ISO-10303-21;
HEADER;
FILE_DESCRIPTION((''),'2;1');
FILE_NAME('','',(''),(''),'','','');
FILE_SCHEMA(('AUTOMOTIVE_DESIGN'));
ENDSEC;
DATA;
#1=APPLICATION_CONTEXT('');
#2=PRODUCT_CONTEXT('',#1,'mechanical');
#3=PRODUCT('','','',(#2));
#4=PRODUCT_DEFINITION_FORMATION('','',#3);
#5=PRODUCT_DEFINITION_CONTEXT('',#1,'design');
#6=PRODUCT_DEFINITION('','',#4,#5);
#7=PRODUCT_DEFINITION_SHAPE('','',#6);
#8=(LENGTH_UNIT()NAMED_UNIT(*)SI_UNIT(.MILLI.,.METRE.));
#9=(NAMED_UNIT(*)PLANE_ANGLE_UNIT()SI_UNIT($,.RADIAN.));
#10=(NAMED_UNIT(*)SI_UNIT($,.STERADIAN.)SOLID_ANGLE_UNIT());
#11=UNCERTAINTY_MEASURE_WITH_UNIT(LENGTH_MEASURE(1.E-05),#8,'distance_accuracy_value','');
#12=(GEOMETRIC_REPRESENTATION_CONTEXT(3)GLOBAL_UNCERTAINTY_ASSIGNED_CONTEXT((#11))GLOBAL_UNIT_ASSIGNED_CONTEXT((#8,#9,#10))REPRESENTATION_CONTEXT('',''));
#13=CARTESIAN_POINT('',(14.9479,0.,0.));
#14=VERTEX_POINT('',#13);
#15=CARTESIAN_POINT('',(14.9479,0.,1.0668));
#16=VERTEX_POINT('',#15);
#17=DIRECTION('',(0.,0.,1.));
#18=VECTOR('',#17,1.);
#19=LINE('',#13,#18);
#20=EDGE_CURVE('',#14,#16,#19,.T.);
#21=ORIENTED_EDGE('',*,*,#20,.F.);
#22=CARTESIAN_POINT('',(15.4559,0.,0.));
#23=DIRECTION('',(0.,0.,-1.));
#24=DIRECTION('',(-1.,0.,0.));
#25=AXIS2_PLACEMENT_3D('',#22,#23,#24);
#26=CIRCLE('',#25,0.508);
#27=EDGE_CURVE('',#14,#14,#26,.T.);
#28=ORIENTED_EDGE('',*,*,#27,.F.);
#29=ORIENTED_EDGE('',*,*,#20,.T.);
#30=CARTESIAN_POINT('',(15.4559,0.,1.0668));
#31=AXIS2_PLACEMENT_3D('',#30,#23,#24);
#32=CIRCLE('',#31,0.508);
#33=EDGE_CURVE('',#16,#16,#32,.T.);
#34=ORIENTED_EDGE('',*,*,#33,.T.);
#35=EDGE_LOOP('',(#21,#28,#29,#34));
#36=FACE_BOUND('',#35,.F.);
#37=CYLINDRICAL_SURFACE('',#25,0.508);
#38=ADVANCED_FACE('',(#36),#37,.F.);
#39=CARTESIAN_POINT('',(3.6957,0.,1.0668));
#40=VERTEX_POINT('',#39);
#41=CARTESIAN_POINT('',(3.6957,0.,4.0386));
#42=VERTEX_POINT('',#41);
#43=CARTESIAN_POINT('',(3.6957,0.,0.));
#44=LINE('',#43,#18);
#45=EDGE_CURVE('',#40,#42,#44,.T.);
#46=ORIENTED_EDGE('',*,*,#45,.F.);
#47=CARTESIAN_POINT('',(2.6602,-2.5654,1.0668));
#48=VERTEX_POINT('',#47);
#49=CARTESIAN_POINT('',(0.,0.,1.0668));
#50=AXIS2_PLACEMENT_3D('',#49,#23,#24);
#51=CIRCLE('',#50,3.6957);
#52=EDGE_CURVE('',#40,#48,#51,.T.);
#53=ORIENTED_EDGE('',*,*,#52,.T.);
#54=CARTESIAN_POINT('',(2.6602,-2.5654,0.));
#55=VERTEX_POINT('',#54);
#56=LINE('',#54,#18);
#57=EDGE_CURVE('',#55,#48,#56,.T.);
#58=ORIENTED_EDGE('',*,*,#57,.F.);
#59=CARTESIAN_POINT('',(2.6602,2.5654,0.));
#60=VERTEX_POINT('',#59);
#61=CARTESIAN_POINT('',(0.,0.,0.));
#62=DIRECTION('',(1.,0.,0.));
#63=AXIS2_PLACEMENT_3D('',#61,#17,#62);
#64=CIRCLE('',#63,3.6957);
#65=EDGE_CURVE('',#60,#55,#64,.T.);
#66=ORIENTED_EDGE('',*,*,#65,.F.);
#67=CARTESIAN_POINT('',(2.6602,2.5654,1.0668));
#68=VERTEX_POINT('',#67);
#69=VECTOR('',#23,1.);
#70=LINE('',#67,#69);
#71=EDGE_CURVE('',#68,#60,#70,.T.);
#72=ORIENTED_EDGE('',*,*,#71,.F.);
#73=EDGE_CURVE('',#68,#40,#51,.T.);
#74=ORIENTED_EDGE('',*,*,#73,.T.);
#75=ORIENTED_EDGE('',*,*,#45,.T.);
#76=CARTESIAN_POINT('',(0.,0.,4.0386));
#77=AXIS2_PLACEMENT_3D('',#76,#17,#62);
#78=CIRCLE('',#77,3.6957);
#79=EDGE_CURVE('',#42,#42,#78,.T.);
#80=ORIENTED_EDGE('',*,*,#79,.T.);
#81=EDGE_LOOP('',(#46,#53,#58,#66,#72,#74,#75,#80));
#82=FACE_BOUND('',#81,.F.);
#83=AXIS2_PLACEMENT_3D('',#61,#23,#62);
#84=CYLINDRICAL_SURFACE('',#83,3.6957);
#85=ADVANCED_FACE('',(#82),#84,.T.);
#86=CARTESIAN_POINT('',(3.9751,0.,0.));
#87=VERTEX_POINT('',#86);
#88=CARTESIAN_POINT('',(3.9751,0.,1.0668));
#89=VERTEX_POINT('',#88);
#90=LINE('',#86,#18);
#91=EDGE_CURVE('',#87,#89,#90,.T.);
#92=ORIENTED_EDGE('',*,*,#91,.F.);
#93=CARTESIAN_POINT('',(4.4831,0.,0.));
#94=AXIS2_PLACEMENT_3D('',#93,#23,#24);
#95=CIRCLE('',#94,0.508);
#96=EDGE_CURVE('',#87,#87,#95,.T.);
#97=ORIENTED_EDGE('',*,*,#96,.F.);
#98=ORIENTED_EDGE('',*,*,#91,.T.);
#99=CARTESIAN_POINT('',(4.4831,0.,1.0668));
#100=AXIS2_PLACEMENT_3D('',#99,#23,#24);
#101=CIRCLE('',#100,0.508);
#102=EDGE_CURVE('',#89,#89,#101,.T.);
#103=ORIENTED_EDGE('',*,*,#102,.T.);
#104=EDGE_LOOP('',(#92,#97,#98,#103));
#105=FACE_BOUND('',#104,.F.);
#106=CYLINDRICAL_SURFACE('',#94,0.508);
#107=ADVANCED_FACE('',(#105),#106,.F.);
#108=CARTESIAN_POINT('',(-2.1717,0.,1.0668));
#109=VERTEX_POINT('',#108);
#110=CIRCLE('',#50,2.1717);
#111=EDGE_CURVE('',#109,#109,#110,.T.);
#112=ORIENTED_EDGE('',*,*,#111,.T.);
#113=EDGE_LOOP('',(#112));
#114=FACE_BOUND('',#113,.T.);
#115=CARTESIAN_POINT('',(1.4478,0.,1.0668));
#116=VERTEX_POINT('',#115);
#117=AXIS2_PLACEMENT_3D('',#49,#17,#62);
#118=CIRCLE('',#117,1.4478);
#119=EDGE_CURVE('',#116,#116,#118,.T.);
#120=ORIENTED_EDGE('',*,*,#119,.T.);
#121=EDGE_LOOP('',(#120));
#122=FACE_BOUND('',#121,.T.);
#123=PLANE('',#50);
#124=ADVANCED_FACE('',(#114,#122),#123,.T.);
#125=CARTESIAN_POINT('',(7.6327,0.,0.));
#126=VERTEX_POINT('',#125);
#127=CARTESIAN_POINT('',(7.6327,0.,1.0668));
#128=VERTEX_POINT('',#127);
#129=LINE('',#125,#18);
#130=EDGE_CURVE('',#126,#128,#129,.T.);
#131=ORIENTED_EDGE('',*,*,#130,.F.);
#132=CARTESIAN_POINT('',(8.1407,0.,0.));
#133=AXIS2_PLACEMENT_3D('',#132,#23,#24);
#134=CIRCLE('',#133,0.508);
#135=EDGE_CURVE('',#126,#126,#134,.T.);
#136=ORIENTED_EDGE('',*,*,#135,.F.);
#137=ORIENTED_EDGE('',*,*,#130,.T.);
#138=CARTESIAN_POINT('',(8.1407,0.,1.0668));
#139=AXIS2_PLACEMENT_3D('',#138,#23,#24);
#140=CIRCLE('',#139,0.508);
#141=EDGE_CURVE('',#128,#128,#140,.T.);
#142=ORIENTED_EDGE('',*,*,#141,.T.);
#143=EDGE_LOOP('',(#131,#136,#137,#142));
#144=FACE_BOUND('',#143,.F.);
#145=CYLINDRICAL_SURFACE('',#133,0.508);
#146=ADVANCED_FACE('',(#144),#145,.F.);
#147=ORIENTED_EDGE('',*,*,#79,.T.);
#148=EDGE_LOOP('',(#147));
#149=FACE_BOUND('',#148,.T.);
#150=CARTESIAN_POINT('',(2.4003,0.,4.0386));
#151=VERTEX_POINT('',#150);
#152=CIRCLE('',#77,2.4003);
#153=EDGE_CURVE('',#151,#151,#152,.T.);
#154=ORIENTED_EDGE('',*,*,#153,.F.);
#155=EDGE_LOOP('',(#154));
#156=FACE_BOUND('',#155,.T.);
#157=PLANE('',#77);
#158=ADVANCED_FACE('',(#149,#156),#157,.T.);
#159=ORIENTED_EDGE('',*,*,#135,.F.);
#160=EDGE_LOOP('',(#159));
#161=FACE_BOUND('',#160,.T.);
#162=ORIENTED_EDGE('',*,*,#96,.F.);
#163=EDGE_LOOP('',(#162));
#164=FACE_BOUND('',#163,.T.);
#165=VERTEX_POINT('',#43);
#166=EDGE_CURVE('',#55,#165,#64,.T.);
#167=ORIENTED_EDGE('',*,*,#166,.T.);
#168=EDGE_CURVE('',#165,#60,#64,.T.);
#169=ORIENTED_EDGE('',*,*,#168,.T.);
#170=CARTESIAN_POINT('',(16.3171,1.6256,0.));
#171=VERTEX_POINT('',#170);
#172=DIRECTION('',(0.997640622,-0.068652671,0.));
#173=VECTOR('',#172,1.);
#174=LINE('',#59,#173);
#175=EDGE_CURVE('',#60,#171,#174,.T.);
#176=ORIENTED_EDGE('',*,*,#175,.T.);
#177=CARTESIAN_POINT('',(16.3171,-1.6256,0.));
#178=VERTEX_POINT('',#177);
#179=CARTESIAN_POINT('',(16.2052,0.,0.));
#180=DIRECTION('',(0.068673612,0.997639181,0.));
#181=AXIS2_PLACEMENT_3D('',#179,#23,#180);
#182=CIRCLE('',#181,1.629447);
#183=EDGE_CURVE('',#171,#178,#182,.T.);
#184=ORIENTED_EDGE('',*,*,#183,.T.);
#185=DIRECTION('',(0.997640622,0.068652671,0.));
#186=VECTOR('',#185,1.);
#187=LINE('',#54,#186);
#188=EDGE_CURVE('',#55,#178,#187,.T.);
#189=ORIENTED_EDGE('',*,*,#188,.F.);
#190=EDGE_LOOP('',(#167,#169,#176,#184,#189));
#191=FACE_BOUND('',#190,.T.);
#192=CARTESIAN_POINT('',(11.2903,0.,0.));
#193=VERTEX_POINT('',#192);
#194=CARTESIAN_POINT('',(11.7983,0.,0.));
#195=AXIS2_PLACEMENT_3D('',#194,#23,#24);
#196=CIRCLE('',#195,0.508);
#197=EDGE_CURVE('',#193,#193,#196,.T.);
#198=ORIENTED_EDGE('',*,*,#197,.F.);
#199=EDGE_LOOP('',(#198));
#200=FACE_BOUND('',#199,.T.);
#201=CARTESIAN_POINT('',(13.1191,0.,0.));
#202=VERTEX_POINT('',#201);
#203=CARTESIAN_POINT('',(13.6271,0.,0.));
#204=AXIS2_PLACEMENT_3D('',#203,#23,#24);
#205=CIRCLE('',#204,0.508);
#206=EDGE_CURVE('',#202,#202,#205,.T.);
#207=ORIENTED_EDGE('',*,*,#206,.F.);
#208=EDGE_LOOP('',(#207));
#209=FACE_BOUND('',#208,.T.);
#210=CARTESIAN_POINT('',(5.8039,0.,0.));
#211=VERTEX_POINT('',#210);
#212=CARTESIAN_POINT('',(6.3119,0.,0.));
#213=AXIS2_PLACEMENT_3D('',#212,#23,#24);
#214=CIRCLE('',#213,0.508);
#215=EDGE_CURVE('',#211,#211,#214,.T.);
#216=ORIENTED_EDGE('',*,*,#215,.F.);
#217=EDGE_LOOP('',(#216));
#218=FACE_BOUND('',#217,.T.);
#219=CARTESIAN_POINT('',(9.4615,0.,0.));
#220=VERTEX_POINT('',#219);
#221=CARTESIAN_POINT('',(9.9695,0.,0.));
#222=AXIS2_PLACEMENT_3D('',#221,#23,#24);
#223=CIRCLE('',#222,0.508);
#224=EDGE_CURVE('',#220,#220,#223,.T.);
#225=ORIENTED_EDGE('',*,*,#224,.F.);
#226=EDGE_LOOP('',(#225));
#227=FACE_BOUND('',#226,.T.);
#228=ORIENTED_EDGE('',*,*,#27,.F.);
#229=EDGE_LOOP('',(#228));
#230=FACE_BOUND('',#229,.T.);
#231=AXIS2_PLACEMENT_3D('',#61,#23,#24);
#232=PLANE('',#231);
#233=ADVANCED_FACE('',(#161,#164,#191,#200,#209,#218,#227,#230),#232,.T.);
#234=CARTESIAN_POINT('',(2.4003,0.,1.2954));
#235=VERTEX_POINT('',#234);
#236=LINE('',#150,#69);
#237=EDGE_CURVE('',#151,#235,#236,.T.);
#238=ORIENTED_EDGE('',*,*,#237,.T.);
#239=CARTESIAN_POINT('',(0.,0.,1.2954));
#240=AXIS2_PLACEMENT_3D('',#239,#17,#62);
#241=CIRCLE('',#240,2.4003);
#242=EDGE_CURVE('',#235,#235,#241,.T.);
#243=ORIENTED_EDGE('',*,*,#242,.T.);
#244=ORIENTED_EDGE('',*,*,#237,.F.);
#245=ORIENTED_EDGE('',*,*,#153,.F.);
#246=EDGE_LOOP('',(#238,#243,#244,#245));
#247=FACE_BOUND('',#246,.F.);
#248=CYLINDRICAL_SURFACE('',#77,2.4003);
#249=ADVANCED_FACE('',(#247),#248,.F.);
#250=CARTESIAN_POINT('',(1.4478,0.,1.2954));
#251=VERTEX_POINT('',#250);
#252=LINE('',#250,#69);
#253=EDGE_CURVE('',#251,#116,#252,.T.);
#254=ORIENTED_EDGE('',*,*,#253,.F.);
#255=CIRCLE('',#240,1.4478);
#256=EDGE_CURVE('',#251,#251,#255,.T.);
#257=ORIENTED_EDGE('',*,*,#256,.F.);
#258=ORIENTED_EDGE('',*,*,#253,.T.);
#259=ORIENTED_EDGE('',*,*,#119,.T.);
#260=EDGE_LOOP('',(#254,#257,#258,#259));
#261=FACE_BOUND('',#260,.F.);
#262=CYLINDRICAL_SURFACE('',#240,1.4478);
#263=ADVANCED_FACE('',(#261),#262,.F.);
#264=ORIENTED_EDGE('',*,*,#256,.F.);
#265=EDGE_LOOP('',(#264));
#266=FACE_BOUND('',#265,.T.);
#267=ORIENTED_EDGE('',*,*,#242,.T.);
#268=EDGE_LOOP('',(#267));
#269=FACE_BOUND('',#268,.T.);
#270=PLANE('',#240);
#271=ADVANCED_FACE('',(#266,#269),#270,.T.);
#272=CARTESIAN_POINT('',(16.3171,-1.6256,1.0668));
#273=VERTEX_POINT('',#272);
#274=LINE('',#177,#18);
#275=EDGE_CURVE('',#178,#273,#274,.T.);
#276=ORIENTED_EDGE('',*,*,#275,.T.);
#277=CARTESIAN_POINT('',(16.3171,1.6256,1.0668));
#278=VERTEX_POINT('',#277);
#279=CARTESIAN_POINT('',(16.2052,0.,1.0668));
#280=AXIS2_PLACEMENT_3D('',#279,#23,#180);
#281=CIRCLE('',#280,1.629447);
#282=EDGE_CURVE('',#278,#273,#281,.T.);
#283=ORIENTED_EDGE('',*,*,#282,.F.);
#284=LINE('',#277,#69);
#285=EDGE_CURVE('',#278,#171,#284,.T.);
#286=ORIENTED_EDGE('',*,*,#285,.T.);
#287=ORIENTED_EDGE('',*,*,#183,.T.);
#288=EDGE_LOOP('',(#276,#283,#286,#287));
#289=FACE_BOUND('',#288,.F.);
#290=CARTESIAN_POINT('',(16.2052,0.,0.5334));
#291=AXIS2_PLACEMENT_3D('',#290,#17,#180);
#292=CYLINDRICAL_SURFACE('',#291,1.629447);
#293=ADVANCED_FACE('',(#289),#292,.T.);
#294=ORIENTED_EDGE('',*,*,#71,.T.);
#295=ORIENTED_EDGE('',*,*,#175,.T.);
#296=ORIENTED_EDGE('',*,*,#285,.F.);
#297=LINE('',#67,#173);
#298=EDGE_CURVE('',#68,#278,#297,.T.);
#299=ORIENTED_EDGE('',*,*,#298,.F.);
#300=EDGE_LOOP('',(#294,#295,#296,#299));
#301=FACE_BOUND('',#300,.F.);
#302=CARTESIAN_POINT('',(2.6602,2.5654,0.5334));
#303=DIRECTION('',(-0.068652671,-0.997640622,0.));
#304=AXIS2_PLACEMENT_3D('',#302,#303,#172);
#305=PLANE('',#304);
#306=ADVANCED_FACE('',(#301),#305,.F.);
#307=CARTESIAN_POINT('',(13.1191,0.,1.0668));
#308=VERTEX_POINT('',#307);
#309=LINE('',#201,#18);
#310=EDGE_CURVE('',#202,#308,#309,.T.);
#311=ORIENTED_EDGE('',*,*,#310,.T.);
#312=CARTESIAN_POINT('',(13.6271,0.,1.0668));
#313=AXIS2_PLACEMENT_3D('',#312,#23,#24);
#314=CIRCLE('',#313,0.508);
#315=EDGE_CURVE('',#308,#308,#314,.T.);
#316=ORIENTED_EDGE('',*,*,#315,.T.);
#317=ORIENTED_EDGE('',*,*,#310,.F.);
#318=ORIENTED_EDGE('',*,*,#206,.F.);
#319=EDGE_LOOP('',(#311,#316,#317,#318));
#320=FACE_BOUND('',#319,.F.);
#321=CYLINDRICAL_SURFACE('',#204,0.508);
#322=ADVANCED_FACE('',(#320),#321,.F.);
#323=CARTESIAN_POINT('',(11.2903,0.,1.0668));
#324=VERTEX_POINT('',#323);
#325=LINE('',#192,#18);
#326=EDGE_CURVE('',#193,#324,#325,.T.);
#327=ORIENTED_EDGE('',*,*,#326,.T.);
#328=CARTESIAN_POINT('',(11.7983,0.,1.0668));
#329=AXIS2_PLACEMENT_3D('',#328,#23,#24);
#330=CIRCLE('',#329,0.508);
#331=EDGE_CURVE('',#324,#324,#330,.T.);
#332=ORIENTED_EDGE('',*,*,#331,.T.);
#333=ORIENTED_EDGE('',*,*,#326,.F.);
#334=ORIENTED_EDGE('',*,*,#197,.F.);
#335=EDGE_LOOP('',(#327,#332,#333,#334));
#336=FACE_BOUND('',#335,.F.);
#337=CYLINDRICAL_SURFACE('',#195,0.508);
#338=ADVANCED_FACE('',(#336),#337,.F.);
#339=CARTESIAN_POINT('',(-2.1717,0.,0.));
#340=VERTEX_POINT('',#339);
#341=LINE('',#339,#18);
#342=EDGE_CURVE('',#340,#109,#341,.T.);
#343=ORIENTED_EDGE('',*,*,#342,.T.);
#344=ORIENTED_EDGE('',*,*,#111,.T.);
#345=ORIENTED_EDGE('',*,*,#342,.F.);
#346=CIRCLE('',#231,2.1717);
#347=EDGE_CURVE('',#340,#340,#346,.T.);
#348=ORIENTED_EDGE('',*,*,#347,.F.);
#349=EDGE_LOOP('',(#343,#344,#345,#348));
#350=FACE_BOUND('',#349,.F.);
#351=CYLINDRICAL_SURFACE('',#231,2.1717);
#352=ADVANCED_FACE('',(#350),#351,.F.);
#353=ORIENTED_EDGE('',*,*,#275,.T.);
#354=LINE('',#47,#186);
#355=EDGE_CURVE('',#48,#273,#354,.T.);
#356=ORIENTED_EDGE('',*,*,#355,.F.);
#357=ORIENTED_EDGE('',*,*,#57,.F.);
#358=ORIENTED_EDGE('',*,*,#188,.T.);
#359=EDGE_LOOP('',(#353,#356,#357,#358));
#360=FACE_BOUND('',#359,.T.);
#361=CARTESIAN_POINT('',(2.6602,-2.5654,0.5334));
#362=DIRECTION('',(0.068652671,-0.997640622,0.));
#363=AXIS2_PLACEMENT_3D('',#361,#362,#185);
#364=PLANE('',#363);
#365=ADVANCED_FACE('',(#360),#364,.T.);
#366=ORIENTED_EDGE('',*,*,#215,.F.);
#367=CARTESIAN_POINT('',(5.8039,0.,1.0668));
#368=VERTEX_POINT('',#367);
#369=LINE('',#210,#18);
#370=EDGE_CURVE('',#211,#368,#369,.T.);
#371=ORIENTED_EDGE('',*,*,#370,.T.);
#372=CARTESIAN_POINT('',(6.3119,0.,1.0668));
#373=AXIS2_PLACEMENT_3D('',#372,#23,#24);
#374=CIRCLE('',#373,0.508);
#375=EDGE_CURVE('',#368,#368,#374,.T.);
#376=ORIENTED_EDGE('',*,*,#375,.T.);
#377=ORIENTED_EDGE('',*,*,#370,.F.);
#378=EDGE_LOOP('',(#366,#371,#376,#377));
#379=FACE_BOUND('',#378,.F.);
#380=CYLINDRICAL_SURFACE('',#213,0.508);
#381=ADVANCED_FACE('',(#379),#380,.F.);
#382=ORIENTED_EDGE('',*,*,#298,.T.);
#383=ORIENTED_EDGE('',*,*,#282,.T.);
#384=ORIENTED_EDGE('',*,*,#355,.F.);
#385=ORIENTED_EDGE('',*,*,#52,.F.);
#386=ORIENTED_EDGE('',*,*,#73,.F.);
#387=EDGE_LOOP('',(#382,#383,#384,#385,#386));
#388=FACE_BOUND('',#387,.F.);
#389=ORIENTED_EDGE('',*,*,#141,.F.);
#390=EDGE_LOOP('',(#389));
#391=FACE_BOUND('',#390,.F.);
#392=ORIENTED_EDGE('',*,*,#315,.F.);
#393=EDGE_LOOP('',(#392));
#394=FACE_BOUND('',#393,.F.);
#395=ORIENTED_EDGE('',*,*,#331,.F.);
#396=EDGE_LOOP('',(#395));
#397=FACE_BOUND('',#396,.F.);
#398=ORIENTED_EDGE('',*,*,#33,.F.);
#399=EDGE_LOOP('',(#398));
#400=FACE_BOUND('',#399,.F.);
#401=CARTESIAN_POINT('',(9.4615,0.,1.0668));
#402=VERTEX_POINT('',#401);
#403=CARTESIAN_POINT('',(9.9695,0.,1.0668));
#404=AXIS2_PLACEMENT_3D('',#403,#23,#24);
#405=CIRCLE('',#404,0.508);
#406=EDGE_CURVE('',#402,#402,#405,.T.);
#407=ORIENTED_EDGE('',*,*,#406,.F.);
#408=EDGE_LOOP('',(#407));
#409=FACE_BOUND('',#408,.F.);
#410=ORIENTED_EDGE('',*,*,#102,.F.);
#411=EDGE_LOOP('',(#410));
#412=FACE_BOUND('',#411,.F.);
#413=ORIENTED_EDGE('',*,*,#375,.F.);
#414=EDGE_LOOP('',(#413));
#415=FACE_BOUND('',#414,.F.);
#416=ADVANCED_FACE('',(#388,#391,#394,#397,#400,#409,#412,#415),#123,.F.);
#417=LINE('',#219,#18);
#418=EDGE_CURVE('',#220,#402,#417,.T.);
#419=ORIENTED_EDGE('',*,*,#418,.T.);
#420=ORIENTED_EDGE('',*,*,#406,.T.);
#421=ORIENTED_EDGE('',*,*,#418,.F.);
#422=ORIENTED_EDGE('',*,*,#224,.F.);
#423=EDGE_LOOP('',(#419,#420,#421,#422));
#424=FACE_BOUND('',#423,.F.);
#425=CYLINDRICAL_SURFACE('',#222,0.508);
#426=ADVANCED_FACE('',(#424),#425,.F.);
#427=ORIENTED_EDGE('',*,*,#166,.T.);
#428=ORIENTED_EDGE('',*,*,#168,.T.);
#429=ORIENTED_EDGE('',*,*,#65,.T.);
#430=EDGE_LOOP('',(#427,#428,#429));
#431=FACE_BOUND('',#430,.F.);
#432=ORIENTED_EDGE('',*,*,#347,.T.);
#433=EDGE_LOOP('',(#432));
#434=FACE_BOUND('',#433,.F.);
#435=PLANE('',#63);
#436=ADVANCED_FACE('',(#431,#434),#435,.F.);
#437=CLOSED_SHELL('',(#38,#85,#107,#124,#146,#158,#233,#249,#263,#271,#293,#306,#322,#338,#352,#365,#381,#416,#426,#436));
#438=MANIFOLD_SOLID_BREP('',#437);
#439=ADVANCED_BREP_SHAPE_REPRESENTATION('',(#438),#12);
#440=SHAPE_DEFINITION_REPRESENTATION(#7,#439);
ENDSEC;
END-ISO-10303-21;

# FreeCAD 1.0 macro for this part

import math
import FreeCAD as App
import Part
import Sketcher
from FreeCAD import Vector
Q = App.Units.Quantity

doc = App.newDocument("Part")
body = doc.addObject("PartDesign::Body", "Body")

# Sketch on XY plane
sketch1 = body.newObject("Sketcher::SketchObject", "Sketch")
sketch1.AttachmentSupport = (doc.getObject("XY_Plane"), [""])
sketch1.MapMode = "FlatFace"
sketch1.addGeometry(Part.Circle(Vector(0, 0, 0), Vector(0, 0, 1), 3.6957), False)
sketch1.addConstraint([
    Sketcher.Constraint("Coincident", 0, 3, -1, 1),
    Sketcher.Constraint("Diameter", 0, Q("0.291 in")),
])
pad1 = body.newObject("PartDesign::Pad", "Pad")
pad1.Profile = sketch1
pad1.Length = Q("0.159 in")

# Sketch on XY plane
sketch2 = body.newObject("Sketcher::SketchObject", "Sketch001")
sketch2.AttachmentSupport = (doc.getObject("XY_Plane"), [""])
sketch2.MapMode = "FlatFace"
sketch2.AttachmentOffset = App.Placement(Vector(0, 0, 0.159 * 25.4), App.Rotation())
sketch2.addGeometry(Part.Circle(Vector(0, 0, 0), Vector(0, 0, 1), 2.4003), False)
sketch2.addConstraint([
    Sketcher.Constraint("Coincident", 0, 3, -1, 1),
    Sketcher.Constraint("Diameter", 0, Q("0.189 in")),
])
pocket1 = body.newObject("PartDesign::Pocket", "Pocket")
pocket1.Profile = sketch2
pocket1.Length = Q("0.108 in")

# Sketch on XY plane
sketch3 = body.newObject("Sketcher::SketchObject", "Sketch002")
sketch3.AttachmentSupport = (doc.getObject("XY_Plane"), [""])
sketch3.MapMode = "FlatFace"
sketch3.addGeometry(Part.Circle(Vector(0, 0, 0), Vector(0, 0, 1), 2.1717), False)
sketch3.addConstraint([
    Sketcher.Constraint("Coincident", 0, 3, -1, 1),
    Sketcher.Constraint("Diameter", 0, Q("0.171 in")),
])
pocket2 = body.newObject("PartDesign::Pocket", "Pocket001")
pocket2.Profile = sketch3
pocket2.Length = Q("0.042 in")
pocket2.Reversed = True

# Sketch on XY plane
sketch4 = body.newObject("Sketcher::SketchObject", "Sketch003")
sketch4.AttachmentSupport = (doc.getObject("XY_Plane"), [""])
sketch4.MapMode = "FlatFace"
sketch4.AttachmentOffset = App.Placement(Vector(0, 0, 0.051 * 25.4), App.Rotation())
sketch4.addGeometry(Part.Circle(Vector(0, 0, 0), Vector(0, 0, 1), 1.4478), False)
sketch4.addConstraint([
    Sketcher.Constraint("Coincident", 0, 3, -1, 1),
    Sketcher.Constraint("Diameter", 0, Q("0.114 in")),
])
pocket3 = body.newObject("PartDesign::Pocket", "Pocket002")
pocket3.Profile = sketch4
pocket3.Type = "ThroughAll"

# Sketch on XY plane
sketch5 = body.newObject("Sketcher::SketchObject", "Sketch004")
sketch5.AttachmentSupport = (doc.getObject("XY_Plane"), [""])
sketch5.MapMode = "FlatFace"
sketch5.AttachmentOffset = App.Placement(Vector(0, 0, 0.021 * 25.4), App.Rotation())
sketch5.addGeometry([
    Part.ArcOfCircle(Part.Circle(Vector(0, 0, 0), Vector(0, 0, 1), 3.6957), math.radians(-43.960685), math.radians(43.960685)),
    Part.LineSegment(Vector(2.6602, 2.5654, 0), Vector(16.3171, 1.6256, 0)),
    Part.ArcOfCircle(Part.Circle(Vector(16.2052, 0, 0), Vector(0, 0, 1), 1.629447), math.radians(-86.062193), math.radians(86.062193)),
    Part.LineSegment(Vector(16.3171, -1.6256, 0), Vector(2.6602, -2.5654, 0)),
], False)
sketch5.addConstraint([
    Sketcher.Constraint("Coincident", 0, 2, 1, 1),
    Sketcher.Constraint("Tangent", 1, 2, 2, 2),
    Sketcher.Constraint("Tangent", 2, 1, 3, 1),
    Sketcher.Constraint("Coincident", 3, 2, 0, 1),
    Sketcher.Constraint("Coincident", 0, 3, -1, 1),
    Sketcher.Constraint("Symmetric", 1, 2, 2, 1, -1),
    Sketcher.Constraint("DistanceX", -1, 1, 2, 3, Q("0.638 in")),
    Sketcher.Constraint("DistanceY", 2, 1, 1, 2, Q("0.128 in")),
    Sketcher.Constraint("DistanceY", 3, 2, 0, 2, Q("0.202 in")),
    Sketcher.Constraint("Radius", 0, Q("0.1455 in")),
])
pad2 = body.newObject("PartDesign::Pad", "Pad001")
pad2.Profile = sketch5
pad2.Length = Q("0.042 in")
pad2.Midplane = True

# Sketch on XY plane
sketch6 = body.newObject("Sketcher::SketchObject", "Sketch005")
sketch6.AttachmentSupport = (doc.getObject("XY_Plane"), [""])
sketch6.MapMode = "FlatFace"
sketch6.addGeometry(Part.Circle(Vector(4.4831, 0, 0), Vector(0, 0, 1), 0.508), False)
sketch6.addConstraint([
    Sketcher.Constraint("PointOnObject", 0, 3, -1),
    Sketcher.Constraint("Diameter", 0, Q("0.04 in")),
    Sketcher.Constraint("DistanceX", -1, 1, 0, 3, Q("0.1765 in")),
])
pocket4 = body.newObject("PartDesign::Pocket", "Pocket003")
pocket4.Profile = sketch6
pocket4.Type = "ThroughAll"
pocket4.Reversed = True
doc.recompute()

linearpattern = body.newObject("PartDesign::LinearPattern", "LinearPattern")
linearpattern.Originals = [pocket4]
linearpattern.Direction = (doc.getObject("X_Axis"), [""])
linearpattern.Mode = "offset"
linearpattern.Offset = Q("0.072 in")
linearpattern.Occurrences = 7
body.Tip = linearpattern

doc.recompute()
